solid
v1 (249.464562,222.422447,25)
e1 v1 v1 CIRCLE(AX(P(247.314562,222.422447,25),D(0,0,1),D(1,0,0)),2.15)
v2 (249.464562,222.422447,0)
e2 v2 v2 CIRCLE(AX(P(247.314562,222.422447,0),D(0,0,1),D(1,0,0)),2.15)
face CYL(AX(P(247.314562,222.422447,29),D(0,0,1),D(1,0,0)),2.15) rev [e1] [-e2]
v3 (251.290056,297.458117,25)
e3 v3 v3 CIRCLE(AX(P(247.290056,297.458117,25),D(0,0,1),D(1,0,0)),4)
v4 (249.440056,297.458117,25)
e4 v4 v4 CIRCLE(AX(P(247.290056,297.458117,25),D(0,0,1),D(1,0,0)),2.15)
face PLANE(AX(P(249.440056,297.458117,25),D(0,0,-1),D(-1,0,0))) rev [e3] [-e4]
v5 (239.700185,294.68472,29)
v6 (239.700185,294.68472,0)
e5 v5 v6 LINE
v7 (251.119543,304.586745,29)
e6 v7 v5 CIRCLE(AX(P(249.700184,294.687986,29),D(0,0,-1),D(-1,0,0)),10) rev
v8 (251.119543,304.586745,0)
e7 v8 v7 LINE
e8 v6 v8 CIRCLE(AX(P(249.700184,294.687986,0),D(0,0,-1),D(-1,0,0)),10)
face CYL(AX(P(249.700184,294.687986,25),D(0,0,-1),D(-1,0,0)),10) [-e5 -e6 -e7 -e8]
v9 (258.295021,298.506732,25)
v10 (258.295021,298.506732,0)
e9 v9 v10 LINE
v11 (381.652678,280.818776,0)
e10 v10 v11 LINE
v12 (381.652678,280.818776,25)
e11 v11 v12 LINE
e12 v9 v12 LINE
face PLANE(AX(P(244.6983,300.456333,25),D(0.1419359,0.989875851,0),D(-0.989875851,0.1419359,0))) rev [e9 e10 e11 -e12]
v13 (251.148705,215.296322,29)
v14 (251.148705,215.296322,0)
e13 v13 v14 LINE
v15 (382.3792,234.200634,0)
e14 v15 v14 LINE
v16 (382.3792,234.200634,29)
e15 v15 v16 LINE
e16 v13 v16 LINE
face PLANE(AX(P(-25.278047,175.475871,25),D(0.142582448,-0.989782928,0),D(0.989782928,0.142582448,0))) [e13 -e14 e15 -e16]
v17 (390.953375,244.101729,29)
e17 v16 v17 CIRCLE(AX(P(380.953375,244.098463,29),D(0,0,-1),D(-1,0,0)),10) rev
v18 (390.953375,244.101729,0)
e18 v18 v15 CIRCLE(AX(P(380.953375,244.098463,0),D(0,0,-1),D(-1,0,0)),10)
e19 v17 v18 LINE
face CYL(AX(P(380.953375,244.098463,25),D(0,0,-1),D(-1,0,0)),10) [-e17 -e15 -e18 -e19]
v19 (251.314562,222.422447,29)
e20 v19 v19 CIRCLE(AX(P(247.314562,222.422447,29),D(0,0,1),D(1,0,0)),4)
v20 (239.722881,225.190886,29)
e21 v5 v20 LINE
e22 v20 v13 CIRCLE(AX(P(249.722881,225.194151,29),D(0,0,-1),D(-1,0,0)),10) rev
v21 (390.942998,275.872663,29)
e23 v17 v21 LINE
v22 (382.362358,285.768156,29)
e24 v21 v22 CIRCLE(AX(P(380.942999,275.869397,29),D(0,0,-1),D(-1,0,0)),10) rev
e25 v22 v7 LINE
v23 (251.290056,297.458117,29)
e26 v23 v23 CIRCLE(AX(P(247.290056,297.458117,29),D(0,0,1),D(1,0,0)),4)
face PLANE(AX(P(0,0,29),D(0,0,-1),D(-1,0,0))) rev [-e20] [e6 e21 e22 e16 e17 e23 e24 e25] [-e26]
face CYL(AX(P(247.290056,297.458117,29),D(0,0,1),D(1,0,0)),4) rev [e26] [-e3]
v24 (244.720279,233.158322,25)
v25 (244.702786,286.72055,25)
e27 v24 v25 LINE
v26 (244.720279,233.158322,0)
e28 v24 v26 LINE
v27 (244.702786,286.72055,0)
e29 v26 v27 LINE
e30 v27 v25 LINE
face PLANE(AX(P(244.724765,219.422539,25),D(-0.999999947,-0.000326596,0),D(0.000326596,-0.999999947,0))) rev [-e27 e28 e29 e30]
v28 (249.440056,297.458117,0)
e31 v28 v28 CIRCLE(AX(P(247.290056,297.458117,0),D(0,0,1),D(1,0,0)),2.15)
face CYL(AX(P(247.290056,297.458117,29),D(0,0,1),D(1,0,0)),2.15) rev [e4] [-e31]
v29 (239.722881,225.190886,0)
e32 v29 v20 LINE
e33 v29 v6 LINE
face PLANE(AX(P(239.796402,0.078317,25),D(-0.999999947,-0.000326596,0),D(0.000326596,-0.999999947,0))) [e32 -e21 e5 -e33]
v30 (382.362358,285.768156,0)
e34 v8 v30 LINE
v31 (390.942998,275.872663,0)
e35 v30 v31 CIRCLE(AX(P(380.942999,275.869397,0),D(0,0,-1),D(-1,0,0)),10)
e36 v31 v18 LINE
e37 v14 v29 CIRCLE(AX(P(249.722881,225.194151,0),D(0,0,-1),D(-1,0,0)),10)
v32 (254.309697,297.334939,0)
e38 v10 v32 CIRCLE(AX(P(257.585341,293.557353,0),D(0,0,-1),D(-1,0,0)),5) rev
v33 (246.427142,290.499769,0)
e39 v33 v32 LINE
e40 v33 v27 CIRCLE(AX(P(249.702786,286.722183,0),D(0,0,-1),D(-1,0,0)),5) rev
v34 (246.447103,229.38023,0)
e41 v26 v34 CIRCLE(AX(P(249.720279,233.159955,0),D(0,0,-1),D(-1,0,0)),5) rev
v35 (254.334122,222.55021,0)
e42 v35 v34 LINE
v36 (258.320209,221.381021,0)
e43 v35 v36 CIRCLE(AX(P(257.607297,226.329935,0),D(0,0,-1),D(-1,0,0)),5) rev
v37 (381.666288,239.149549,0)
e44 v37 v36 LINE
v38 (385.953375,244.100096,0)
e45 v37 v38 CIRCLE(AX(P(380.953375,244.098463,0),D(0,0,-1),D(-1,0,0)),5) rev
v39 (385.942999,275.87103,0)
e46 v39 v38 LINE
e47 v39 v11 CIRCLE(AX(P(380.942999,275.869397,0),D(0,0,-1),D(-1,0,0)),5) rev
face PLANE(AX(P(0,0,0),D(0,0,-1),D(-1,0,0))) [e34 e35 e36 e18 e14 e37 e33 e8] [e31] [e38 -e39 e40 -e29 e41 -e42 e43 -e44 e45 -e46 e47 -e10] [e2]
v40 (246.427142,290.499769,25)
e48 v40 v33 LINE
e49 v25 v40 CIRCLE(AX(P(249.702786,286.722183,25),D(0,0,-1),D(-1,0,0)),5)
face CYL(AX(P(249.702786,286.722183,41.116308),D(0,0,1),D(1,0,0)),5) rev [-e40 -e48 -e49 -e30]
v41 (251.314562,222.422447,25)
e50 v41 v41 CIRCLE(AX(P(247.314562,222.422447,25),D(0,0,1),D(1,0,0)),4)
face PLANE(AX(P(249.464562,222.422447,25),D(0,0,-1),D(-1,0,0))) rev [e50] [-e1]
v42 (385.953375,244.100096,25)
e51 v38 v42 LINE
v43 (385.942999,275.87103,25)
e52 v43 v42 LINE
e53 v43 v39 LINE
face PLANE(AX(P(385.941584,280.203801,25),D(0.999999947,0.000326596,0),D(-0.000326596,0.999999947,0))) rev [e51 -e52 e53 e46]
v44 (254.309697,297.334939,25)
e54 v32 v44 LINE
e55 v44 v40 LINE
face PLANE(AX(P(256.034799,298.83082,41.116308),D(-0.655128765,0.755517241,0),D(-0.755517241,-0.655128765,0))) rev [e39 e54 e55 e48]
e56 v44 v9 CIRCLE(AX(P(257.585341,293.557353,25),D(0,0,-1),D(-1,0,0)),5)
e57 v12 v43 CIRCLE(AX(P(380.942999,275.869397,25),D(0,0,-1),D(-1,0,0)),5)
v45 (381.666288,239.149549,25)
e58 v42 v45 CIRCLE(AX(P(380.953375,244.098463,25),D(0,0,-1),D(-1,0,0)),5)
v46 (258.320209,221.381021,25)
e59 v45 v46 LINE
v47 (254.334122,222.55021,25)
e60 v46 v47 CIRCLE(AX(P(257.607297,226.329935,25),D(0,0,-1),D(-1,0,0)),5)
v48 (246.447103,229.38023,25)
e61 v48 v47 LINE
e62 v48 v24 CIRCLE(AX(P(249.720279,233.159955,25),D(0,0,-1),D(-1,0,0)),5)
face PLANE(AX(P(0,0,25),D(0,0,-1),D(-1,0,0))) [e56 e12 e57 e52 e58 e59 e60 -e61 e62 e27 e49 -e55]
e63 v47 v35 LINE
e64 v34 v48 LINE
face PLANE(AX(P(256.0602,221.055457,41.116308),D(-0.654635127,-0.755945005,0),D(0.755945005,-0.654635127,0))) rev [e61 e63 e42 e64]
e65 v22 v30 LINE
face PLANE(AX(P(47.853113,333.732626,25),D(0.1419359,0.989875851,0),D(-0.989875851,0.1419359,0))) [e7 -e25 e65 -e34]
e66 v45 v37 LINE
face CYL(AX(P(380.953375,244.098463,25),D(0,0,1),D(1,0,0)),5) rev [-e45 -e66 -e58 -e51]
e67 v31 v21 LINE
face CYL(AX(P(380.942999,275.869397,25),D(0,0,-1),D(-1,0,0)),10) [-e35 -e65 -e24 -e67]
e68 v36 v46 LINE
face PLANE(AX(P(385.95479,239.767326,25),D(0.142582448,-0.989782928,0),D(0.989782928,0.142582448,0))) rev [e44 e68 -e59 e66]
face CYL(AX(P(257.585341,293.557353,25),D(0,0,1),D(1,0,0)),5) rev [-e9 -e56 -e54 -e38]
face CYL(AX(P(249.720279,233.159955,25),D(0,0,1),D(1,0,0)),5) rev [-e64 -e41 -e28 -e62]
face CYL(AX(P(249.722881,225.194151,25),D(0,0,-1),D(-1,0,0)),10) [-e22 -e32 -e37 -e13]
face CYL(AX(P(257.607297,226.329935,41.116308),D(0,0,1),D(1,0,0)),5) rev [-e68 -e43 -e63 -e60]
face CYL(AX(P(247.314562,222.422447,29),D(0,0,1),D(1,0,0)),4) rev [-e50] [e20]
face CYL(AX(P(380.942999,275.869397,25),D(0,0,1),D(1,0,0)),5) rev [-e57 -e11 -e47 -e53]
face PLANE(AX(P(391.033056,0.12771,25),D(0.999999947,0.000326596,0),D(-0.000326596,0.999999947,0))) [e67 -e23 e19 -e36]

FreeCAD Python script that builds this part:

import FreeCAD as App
import Part
import Sketcher
Q = App.Units.Quantity


def edges_at(feature, points):
    """Names of the edges that pass closest to the given points."""
    edges = feature.Shape.Edges
    near = lambda p: min(range(len(edges)), key=lambda i: edges[i].distToShape(Part.Vertex(*p))[0])
    return sorted({f"Edge{near(p) + 1}" for p in points})

doc = App.newDocument("Part")
body = doc.addObject("PartDesign::Body", "Body")

# Sketch on XY plane
sketch1 = doc.addObject("Sketcher::SketchObject", "Sketch")
body.addObject(sketch1)
sketch1.AttachmentSupport = (doc.XY_Plane, [""])
sketch1.MapMode = "FlatFace"
sketch1.addGeometry([
    Part.LineSegment(App.Vector(240, 306, 0), App.Vector(240, 214, 0)),  # 0
    Part.LineSegment(App.Vector(240, 214, 0), App.Vector(391, 235, 0)),  # 1
    Part.LineSegment(App.Vector(391, 235, 0), App.Vector(391, 285, 0)),  # 2
    Part.LineSegment(App.Vector(391, 285, 0), App.Vector(240, 306, 0)),  # 3
    Part.LineSegment(App.Vector(245, 219, 0), App.Vector(245, 300, 0)),  # 4
    Part.LineSegment(App.Vector(245, 300, 0), App.Vector(386, 280, 0)),  # 5
    Part.LineSegment(App.Vector(386, 280, 0), App.Vector(386, 240, 0)),  # 6
    Part.LineSegment(App.Vector(386, 240, 0), App.Vector(245, 219, 0)),  # 7
], False)
sketch1.addConstraint([
    Sketcher.Constraint("Coincident", 0, 2, 1, 1),
    Sketcher.Constraint("Coincident", 1, 2, 2, 1),
    Sketcher.Constraint("Coincident", 2, 2, 3, 1),
    Sketcher.Constraint("Coincident", 3, 2, 0, 1),
    Sketcher.Constraint("Coincident", 4, 2, 5, 1),
    Sketcher.Constraint("Coincident", 5, 2, 6, 1),
    Sketcher.Constraint("Coincident", 6, 2, 7, 1),
    Sketcher.Constraint("Coincident", 7, 2, 4, 1),
    Sketcher.Constraint("Parallel", 0, 2),
    Sketcher.Constraint("Parallel", 2, 4),
    Sketcher.Constraint("Parallel", 3, 5),
    Sketcher.Constraint("Parallel", 4, 6),
    Sketcher.Constraint("Parallel", 1, 7),
    Sketcher.Constraint("Equal", 1, 3),
    Sketcher.Constraint("Distance", 4, Q("81.033798 mm")),
    Sketcher.Constraint("DistanceX", -1, 1, 4, 2, Q("244.6983 mm")),
    Sketcher.Constraint("DistanceY", -1, 1, 5, 2, Q("280.203801 mm")),
    Sketcher.Constraint("DistanceY", 0, 2, 6, 2, Q("26.116399 mm")),
    Sketcher.Constraint("Distance", 2, Q("49.102019 mm")),
    Sketcher.Constraint("DistanceX", -1, 1, 0, 2, Q("239.72665 mm")),
    Sketcher.Constraint("DistanceY", -1, 1, 1, 2, Q("235.436188 mm")),
    Sketcher.Constraint("DistanceX", -1, 1, 2, 2, Q("390.940168 mm")),
    Sketcher.Constraint("DistanceY", -1, 1, 3, 2, Q("306.224679 mm")),
    Sketcher.Constraint("DistanceX", -1, 1, 6, 2, Q("385.95479 mm")),
])
pad1 = doc.addObject("PartDesign::Pad", "Pad")
body.addObject(pad1)
pad1.Profile = sketch1
pad1.Length = 25

# Sketch on XY plane
sketch2 = doc.addObject("Sketcher::SketchObject", "Sketch001")
body.addObject(sketch2)
sketch2.AttachmentSupport = (doc.XY_Plane, [""])
sketch2.MapMode = "FlatFace"
sketch2.addGeometry([
    Part.LineSegment(App.Vector(256, 299, 0), App.Vector(245, 300, 0)),  # 0
    Part.LineSegment(App.Vector(245, 300, 0), App.Vector(245, 289, 0)),  # 1
    Part.LineSegment(App.Vector(245, 289, 0), App.Vector(256, 299, 0)),  # 2
    Part.LineSegment(App.Vector(245, 231, 0), App.Vector(245, 219, 0)),  # 3
    Part.LineSegment(App.Vector(245, 219, 0), App.Vector(256, 221, 0)),  # 4
    Part.LineSegment(App.Vector(256, 221, 0), App.Vector(245, 231, 0)),  # 5
], False)
sketch2.addConstraint([
    Sketcher.Constraint("Coincident", 0, 2, 1, 1),
    Sketcher.Constraint("Coincident", 1, 2, 2, 1),
    Sketcher.Constraint("Coincident", 2, 2, 0, 1),
    Sketcher.Constraint("Coincident", 3, 2, 4, 1),
    Sketcher.Constraint("Coincident", 4, 2, 5, 1),
    Sketcher.Constraint("Coincident", 5, 2, 3, 1),
    Sketcher.Constraint("Parallel", 1, 3),
    Sketcher.Constraint("Equal", 0, 1),
    Sketcher.Constraint("Equal", 1, 3),
    Sketcher.Constraint("Equal", 3, 4),
    Sketcher.Constraint("Equal", 2, 5),
    Sketcher.Constraint("Distance", 2, Q("15 mm")),
    Sketcher.Constraint("DistanceX", -1, 1, 0, 2, Q("244.6983 mm")),
    Sketcher.Constraint("DistanceX", -1, 1, 2, 2, Q("256.034799 mm")),
    Sketcher.Constraint("DistanceX", -1, 1, 4, 2, Q("256.0602 mm")),
    Sketcher.Constraint("DistanceX", -1, 1, 1, 2, Q("244.70204 mm")),
    Sketcher.Constraint("DistanceY", -1, 1, 1, 2, Q("289.003888 mm")),
    Sketcher.Constraint("DistanceY", -1, 1, 3, 2, Q("219.422539 mm")),
])
pad2 = doc.addObject("PartDesign::Pad", "Pad001")
body.addObject(pad2)
pad2.Profile = sketch2
pad2.Length = 25

# Sketch on XY plane
sketch3 = doc.addObject("Sketcher::SketchObject", "Sketch002")
body.addObject(sketch3)
sketch3.AttachmentSupport = (doc.XY_Plane, [""])
sketch3.MapMode = "FlatFace"
sketch3.AttachmentOffset = App.Placement(App.Vector(0, 0, 25), App.Rotation())
sketch3.addGeometry([
    Part.LineSegment(App.Vector(391, 285, 0), App.Vector(240, 306, 0)),
    Part.LineSegment(App.Vector(240, 306, 0), App.Vector(240, 214, 0)),
    Part.LineSegment(App.Vector(240, 214, 0), App.Vector(391, 235, 0)),
    Part.LineSegment(App.Vector(391, 235, 0), App.Vector(391, 285, 0)),
], False)
sketch3.addConstraint([
    Sketcher.Constraint("Coincident", 0, 2, 1, 1),
    Sketcher.Constraint("Coincident", 1, 2, 2, 1),
    Sketcher.Constraint("Coincident", 2, 2, 3, 1),
    Sketcher.Constraint("Coincident", 3, 2, 0, 1),
    Sketcher.Constraint("Parallel", 1, 3),
    Sketcher.Constraint("Equal", 0, 2),
    Sketcher.Constraint("Distance", 3, Q("49.102019 mm")),
    Sketcher.Constraint("DistanceY", -1, 1, 0, 2, Q("306.224679 mm")),
    Sketcher.Constraint("DistanceX", -1, 1, 1, 2, Q("239.72665 mm")),
    Sketcher.Constraint("DistanceY", -1, 1, 2, 2, Q("235.436188 mm")),
    Sketcher.Constraint("DistanceX", -1, 1, 3, 2, Q("390.940168 mm")),
    Sketcher.Constraint("DistanceY", 1, 2, 2, 2, Q("21.785262 mm")),
])
pad3 = doc.addObject("PartDesign::Pad", "Pad002")
body.addObject(pad3)
pad3.Profile = sketch3
pad3.Length = 4
doc.recompute()

fillet = doc.addObject("PartDesign::Fillet", "Fillet")
body.addObject(fillet)
fillet.Base = (pad3, edges_at(pad3, [
    (239.727, 213.651, 14.5),
    (390.956, 235.436, 14.5),
    (390.94, 284.538, 14.5),
    (239.696, 306.225, 14.5),
]))
fillet.Radius = 10

# Sketch on XY plane
sketch4 = doc.addObject("Sketcher::SketchObject", "Sketch003")
body.addObject(sketch4)
sketch4.AttachmentSupport = (doc.XY_Plane, [""])
sketch4.MapMode = "FlatFace"
sketch4.AttachmentOffset = App.Placement(App.Vector(0, 0, 29), App.Rotation())
sketch4.addGeometry([
    Part.Circle(App.Vector(247.3, 297.5, 0), App.Vector(0, 0, 1), 2.1),
    Part.Circle(App.Vector(247.3, 222.4, 0), App.Vector(0, 0, 1), 2.1),
], False)
sketch4.addConstraint([
    Sketcher.Constraint("Equal", 0, 1),
    Sketcher.Constraint("Diameter", 0, Q("4.3 mm")),
    Sketcher.Constraint("DistanceX", -1, 1, 1, 3, Q("247.314562 mm")),
    Sketcher.Constraint("DistanceY", 1, 3, 0, 3, Q("75.03567 mm")),
    Sketcher.Constraint("DistanceX", -1, 1, 0, 3, Q("247.290056 mm")),
    Sketcher.Constraint("DistanceY", -1, 1, 0, 3, Q("297.458117 mm")),
])
doc.recompute()
hole = doc.addObject("PartDesign::Hole", "Hole")
body.addObject(hole)
hole.Profile = sketch4
hole.ThreadType = "None"
hole.Diameter = 4.3
hole.DepthType = "ThroughAll"
hole.HoleCutType = "Counterbore"
hole.HoleCutDiameter = 8
hole.HoleCutDepth = 4
doc.recompute()

fillet2 = doc.addObject("PartDesign::Fillet", "Fillet001")
body.addObject(fillet2)
fillet2.Base = (hole, edges_at(hole, [
    (385.955, 239.767, 12.5),
    (385.942, 280.204, 12.5),
    (256.035, 298.831, 12.5),
    (244.702, 289.004, 12.5),
    (244.721, 230.875, 12.5),
    (256.06, 221.055, 12.5),
]))
fillet2.Radius = 5

doc.recompute()
